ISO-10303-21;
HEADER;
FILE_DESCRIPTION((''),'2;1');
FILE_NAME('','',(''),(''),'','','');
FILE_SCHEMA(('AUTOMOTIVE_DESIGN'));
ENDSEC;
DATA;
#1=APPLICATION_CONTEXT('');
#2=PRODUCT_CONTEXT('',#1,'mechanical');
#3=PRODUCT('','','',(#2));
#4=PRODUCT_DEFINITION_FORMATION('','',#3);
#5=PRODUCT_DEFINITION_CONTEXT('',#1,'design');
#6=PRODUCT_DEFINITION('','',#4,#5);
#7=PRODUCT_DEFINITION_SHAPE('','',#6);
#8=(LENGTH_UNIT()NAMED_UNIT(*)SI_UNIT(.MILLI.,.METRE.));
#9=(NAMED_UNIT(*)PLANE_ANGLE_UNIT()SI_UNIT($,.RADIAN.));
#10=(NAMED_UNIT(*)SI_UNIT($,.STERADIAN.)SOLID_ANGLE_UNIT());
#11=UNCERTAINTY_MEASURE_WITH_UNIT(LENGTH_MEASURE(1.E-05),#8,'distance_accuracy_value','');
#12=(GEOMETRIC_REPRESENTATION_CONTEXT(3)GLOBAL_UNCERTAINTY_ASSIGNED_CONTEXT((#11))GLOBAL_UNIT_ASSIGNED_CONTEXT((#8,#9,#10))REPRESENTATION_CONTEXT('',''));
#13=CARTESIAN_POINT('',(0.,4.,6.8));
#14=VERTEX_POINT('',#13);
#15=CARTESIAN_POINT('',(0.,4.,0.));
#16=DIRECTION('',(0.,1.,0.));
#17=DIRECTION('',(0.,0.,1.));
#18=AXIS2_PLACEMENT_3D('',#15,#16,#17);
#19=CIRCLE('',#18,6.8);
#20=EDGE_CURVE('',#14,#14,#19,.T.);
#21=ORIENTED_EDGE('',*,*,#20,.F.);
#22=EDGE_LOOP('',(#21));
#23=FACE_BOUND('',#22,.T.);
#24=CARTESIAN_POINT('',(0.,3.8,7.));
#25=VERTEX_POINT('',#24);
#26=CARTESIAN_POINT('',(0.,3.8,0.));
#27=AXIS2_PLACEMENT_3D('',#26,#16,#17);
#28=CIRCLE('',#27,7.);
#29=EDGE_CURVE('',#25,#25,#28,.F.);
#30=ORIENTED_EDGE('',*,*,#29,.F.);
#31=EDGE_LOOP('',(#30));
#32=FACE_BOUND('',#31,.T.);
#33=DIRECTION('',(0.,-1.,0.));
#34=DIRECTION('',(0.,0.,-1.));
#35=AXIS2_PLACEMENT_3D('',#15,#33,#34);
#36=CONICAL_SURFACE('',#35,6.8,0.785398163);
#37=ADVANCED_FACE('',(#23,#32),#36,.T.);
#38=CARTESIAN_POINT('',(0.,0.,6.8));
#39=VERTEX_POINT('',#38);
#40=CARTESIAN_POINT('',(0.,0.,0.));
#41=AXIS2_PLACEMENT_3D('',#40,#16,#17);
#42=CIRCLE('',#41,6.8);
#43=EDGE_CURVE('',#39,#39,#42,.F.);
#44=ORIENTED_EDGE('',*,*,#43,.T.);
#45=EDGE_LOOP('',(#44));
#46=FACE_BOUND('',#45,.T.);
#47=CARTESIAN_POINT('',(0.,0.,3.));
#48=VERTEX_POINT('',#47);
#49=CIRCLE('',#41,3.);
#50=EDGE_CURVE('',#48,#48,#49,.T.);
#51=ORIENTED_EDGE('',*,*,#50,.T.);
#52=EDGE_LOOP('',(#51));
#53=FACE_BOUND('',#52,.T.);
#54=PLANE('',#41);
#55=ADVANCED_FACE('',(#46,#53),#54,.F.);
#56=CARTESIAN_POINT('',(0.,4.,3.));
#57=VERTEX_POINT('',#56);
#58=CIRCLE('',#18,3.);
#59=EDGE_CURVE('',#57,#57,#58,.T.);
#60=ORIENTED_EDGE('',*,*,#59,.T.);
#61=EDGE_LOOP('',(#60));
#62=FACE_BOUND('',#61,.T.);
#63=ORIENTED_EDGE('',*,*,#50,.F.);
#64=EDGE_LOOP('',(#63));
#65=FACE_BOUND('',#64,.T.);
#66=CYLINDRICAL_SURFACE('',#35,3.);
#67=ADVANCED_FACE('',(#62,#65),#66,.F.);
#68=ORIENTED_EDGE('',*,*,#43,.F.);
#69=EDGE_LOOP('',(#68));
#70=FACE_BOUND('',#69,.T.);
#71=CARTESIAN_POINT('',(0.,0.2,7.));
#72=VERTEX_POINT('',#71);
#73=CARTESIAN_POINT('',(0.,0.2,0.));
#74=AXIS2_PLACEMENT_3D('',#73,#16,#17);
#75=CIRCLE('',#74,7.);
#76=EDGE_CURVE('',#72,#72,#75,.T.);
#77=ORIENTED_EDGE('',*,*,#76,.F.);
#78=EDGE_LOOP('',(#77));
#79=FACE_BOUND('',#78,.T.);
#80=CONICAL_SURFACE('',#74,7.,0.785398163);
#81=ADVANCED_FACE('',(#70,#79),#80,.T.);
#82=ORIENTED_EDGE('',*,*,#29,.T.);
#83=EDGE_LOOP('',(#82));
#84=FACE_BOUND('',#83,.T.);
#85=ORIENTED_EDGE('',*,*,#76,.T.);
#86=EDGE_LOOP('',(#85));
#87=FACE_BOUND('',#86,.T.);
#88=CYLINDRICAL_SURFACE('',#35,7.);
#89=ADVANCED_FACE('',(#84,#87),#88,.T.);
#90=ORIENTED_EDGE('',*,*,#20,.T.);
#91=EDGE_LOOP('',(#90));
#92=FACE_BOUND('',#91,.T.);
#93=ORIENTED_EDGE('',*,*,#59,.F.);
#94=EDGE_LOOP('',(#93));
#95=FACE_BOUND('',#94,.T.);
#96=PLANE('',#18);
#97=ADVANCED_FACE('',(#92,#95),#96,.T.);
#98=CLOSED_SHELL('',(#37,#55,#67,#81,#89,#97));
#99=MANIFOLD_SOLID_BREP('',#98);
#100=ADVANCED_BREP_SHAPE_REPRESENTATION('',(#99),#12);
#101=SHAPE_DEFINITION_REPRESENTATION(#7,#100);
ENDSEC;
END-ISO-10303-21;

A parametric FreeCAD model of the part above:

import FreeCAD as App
import Part
import Sketcher
from FreeCAD import Vector


def edges_at(feature, points):
    """Names of the edges that pass closest to the given points."""
    edges = feature.Shape.Edges
    near = lambda p: min(range(len(edges)), key=lambda i: edges[i].distToShape(Part.Vertex(*p))[0])
    return sorted({f"Edge{near(p) + 1}" for p in points})

doc = App.newDocument("Part")
params = doc.addObject("Spreadsheet::Sheet", "Params")
for row, (alias, value) in enumerate([
    ("sketch1_diameter", "14 mm"),
    ("sketch1_diameter2", "6 mm"),
    ("pad1_length", "4 mm"),
    ("chamfer_size", "0.2 mm"),
], start=1):
    params.set(f"A{row}", alias)
    params.set(f"B{row}", "=" + value)
    params.setAlias(f"B{row}", alias)

body = doc.addObject("PartDesign::Body", "Body")

# Sketch on XZ plane
sketch1 = doc.addObject("Sketcher::SketchObject", "Sketch")
body.addObject(sketch1)
sketch1.AttachmentSupport = (doc.XZ_Plane, [""])
sketch1.MapMode = "FlatFace"
sketch1.addGeometry([
    Part.Circle(Vector(0, 0, 0), Vector(0, 0, 1), 7),
    Part.Circle(Vector(0, 0, 0), Vector(0, 0, 1), 3),
], False)
sketch1.addConstraint([
    Sketcher.Constraint("Coincident", 0, 3, -1, 1),
    Sketcher.Constraint("Coincident", 1, 3, -1, 1),
    Sketcher.Constraint("Diameter", 0, 14.0),
    Sketcher.Constraint("Diameter", 1, 6.0),
])
sketch1.setExpression("Constraints[2]", "Params.sketch1_diameter")
sketch1.setExpression("Constraints[3]", "Params.sketch1_diameter2")
pad1 = doc.addObject("PartDesign::Pad", "Pad")
body.addObject(pad1)
pad1.Profile = sketch1
pad1.setExpression("Length", "Params.pad1_length")
pad1.Reversed = True
doc.recompute()

chamfer = doc.addObject("PartDesign::Chamfer", "Chamfer")
body.addObject(chamfer)
chamfer.Base = (pad1, edges_at(pad1, [(-7, 0, 0), (-7, 4, 0)]))
chamfer.setExpression("Size", "Params.chamfer_size")

doc.recompute()
